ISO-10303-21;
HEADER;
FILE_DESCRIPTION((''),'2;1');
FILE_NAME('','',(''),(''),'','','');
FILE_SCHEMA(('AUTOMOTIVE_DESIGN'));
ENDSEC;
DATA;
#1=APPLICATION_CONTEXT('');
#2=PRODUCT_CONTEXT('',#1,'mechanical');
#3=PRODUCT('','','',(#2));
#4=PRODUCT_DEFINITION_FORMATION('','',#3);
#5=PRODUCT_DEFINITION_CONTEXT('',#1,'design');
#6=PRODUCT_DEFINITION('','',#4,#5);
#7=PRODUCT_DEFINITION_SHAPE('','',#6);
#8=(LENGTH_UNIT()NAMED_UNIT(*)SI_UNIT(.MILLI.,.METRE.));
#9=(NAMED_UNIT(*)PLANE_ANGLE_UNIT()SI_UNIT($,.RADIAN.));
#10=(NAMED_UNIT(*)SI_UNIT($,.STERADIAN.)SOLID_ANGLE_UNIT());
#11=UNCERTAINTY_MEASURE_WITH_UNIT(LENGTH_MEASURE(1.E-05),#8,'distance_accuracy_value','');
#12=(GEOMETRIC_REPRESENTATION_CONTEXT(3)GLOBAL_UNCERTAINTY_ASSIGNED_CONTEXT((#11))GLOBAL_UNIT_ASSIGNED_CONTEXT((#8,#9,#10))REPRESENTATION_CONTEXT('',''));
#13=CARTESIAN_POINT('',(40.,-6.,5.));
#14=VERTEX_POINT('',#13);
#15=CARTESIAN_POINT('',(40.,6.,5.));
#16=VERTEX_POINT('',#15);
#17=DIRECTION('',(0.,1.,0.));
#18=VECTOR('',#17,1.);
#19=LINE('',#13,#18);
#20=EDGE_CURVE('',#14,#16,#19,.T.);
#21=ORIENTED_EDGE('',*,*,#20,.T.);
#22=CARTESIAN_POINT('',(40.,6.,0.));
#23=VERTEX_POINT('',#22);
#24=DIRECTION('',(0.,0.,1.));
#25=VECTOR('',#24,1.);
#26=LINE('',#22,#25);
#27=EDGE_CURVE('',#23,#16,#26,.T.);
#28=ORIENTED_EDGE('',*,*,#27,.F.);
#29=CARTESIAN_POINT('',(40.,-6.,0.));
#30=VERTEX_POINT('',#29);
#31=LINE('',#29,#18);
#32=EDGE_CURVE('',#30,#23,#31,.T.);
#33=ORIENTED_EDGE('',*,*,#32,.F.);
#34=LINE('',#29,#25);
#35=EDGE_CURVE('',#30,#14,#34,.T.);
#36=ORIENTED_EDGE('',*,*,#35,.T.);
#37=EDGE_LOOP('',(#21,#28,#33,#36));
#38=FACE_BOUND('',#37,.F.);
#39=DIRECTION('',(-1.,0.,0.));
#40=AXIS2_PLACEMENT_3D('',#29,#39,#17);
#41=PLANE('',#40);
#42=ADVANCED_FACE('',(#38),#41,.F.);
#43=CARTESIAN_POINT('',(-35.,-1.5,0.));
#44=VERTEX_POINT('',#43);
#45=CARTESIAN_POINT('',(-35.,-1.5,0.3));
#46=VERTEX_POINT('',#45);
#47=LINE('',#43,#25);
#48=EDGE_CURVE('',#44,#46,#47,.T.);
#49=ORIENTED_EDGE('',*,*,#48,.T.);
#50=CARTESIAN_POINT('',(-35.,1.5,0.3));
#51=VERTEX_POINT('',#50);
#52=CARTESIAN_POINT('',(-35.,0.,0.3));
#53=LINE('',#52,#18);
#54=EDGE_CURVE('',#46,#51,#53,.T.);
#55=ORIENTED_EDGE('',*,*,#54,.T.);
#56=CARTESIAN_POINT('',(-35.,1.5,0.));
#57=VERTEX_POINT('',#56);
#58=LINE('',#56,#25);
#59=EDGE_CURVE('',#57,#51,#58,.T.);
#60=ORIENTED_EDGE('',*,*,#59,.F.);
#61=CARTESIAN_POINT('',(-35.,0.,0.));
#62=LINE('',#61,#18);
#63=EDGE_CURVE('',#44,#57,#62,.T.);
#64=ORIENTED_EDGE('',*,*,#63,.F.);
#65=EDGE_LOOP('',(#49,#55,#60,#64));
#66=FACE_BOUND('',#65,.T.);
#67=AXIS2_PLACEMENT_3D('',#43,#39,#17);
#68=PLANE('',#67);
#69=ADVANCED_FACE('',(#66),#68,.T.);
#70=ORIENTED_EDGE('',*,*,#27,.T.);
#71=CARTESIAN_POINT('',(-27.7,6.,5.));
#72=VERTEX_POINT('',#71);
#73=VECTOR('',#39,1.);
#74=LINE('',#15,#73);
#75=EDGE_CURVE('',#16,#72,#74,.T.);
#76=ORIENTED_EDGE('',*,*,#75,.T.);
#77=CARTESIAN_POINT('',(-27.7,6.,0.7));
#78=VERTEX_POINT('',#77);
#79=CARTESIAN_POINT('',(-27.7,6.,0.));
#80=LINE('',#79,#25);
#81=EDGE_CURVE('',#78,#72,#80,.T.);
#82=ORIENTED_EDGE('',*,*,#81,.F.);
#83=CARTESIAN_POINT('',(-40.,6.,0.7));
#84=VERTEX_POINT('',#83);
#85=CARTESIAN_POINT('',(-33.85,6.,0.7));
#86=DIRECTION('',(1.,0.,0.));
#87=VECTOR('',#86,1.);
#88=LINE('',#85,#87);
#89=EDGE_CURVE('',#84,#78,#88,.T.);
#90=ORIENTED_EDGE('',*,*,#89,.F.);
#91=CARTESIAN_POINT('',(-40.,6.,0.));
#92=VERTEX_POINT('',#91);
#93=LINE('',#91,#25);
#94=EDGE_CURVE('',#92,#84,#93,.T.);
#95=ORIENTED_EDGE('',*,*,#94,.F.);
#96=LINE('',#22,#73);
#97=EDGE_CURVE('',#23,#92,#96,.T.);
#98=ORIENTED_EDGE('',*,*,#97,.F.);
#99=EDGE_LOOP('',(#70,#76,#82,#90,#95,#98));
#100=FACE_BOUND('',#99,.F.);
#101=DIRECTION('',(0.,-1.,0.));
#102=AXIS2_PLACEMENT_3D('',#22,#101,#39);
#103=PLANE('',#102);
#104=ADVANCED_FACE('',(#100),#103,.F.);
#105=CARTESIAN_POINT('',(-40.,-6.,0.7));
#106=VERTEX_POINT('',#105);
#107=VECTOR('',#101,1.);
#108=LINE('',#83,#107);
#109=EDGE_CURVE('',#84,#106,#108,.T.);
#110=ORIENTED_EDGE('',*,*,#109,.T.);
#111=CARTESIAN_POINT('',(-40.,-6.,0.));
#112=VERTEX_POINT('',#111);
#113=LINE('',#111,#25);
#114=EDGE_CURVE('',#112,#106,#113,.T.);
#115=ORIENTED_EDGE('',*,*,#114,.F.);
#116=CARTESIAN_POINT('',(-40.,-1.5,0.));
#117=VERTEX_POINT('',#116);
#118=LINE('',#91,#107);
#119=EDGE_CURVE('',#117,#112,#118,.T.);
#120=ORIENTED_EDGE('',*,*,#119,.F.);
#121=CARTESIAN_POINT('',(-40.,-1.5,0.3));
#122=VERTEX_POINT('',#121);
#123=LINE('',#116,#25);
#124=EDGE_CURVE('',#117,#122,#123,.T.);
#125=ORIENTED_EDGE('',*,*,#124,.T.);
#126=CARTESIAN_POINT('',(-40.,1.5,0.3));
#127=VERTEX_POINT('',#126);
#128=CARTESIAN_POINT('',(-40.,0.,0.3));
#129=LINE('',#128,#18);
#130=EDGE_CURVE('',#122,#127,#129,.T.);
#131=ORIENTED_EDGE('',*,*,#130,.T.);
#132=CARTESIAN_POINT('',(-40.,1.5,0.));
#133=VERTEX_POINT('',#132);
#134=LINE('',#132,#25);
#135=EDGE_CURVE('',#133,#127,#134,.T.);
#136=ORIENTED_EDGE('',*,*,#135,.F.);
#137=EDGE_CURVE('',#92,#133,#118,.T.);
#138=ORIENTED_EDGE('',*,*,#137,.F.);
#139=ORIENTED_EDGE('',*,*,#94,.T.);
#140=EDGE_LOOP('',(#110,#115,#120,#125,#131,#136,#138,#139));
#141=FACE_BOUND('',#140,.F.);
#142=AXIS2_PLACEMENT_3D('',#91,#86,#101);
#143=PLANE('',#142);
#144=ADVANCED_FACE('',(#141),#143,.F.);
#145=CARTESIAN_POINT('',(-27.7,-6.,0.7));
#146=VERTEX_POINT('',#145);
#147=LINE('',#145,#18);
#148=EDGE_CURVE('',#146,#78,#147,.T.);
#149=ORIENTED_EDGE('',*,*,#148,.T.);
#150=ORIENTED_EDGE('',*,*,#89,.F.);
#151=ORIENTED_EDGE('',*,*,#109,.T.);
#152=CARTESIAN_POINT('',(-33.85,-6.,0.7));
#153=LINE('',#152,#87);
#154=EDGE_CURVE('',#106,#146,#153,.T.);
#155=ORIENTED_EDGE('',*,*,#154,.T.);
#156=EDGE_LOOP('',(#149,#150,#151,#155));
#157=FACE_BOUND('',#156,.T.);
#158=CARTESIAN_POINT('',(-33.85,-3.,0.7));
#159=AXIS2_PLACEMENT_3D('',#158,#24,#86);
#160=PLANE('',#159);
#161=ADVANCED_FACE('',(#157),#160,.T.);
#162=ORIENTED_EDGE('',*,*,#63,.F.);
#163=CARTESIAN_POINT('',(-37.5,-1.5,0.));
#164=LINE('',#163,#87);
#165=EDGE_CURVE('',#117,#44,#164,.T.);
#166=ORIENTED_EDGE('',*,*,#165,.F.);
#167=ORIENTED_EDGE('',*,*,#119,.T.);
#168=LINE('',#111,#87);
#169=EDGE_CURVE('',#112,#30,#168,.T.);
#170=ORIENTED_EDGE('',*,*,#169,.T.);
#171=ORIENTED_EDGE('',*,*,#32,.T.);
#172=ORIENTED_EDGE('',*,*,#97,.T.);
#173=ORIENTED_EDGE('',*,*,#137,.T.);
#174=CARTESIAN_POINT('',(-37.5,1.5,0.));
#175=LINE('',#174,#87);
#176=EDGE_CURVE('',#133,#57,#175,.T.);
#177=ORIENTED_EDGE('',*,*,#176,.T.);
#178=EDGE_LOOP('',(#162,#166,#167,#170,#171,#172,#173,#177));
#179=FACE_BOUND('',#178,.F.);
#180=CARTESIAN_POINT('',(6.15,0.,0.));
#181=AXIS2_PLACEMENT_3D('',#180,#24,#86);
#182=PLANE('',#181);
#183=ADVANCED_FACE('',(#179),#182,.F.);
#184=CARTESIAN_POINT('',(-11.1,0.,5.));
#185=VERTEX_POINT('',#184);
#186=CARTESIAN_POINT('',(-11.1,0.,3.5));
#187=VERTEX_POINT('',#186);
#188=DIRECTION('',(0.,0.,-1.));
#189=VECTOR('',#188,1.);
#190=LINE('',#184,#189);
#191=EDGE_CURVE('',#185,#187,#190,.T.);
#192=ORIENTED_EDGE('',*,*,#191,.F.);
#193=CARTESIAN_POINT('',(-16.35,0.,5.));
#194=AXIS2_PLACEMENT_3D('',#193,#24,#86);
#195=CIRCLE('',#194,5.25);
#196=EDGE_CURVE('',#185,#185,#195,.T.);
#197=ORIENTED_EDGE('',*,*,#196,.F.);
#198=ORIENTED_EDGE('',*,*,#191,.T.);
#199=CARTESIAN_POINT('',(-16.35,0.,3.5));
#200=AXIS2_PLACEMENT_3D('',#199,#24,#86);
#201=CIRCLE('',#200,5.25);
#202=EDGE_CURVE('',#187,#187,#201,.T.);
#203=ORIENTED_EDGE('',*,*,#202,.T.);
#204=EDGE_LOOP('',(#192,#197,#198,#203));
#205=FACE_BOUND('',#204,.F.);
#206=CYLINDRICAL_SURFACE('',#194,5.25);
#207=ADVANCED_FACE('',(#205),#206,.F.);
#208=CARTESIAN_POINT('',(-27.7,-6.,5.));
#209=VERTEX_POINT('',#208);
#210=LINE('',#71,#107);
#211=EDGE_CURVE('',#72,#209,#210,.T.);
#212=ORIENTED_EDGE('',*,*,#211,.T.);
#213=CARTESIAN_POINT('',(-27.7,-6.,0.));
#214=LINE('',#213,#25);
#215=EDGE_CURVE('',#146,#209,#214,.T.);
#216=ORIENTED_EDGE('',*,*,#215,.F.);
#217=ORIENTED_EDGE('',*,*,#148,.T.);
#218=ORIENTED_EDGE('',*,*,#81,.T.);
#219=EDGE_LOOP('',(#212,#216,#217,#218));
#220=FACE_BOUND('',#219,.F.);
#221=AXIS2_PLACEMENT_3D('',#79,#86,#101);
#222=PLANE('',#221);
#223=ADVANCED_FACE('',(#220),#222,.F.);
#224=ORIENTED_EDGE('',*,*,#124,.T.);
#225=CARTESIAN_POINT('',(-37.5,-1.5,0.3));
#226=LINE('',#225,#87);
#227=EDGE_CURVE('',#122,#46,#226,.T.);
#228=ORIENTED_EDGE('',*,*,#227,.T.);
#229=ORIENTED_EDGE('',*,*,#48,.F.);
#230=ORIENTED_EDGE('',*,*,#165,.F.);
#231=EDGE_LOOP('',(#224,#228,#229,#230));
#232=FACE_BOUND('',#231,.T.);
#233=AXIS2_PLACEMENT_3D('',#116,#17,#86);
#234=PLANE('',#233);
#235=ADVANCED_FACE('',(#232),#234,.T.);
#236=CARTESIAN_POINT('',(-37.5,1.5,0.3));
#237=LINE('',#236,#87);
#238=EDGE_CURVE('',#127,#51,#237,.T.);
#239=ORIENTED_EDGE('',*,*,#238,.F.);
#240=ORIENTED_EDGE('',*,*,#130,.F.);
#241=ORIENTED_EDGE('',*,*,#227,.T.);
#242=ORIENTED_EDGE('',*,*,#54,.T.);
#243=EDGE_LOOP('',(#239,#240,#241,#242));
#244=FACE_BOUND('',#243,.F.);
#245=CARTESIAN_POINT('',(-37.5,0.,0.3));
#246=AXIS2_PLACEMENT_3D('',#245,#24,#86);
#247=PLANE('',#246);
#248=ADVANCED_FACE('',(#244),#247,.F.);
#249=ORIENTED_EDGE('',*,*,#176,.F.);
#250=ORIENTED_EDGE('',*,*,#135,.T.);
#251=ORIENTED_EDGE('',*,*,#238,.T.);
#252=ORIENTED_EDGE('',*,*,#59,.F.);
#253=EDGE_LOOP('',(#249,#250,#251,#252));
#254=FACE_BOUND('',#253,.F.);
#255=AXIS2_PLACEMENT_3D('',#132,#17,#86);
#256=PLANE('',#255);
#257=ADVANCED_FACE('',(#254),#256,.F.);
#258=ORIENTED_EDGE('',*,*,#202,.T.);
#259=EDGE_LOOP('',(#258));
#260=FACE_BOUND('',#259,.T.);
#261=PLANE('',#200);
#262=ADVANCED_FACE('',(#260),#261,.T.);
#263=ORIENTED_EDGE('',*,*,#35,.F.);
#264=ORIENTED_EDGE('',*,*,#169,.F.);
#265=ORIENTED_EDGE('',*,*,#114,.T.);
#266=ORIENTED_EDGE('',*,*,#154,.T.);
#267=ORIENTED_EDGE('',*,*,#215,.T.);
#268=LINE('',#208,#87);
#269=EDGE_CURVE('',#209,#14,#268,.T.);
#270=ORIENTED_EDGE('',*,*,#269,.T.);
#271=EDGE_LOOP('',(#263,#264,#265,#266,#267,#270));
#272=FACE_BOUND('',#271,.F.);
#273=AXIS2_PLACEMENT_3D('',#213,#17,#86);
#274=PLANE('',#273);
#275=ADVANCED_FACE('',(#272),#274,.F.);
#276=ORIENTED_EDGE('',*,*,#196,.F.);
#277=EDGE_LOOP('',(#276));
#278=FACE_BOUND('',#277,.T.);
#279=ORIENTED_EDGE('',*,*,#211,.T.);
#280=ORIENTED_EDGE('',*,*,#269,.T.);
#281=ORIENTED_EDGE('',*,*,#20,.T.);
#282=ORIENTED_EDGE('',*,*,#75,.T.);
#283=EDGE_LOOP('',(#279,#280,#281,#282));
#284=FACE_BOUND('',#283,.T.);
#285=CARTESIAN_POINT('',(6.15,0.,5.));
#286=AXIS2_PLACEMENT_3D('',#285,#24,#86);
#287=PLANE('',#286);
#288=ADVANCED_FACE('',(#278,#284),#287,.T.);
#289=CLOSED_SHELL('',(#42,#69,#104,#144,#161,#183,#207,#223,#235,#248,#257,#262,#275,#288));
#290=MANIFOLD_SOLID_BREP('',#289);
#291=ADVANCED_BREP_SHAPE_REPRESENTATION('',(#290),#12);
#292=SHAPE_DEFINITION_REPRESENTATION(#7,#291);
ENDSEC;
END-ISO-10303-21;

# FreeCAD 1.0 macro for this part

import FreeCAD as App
import Part
import Sketcher

V = App.Vector


def add_polygon(sketch, points):
    """Adds a closed chain of lines whose ends are joined by coincident constraints."""
    first, n = sketch.GeometryCount, len(points)
    for a, b in zip(points, points[1:] + points[:1]):
        sketch.addGeometry(Part.LineSegment(App.Vector(*a, 0), App.Vector(*b, 0)), False)
    for i in range(n):
        sketch.addConstraint(Sketcher.Constraint("Coincident", first + i, 2, first + (i + 1) % n, 1))

doc = App.newDocument("Part")
body = doc.addObject("PartDesign::Body", "Body")

# Sketch on XY plane
sketch1 = body.newObject("Sketcher::SketchObject", "Sketch")
sketch1.AttachmentSupport = (doc.getObject("XY_Plane"), [""])
sketch1.MapMode = "FlatFace"
add_polygon(sketch1, [(-40, -6), (-28, -6), (-28, 6), (-40, 6)])  # lines 0-3
sketch1.addConstraint(Sketcher.Constraint("Horizontal", 0))
sketch1.addConstraint(Sketcher.Constraint("Vertical", 1))
sketch1.addConstraint(Sketcher.Constraint("Horizontal", 2))
sketch1.addConstraint(Sketcher.Constraint("Vertical", 3))
sketch1.addConstraint(Sketcher.Constraint("DistanceY", 1, 1, 1, 2, 12.0))
sketch1.addConstraint(Sketcher.Constraint("DistanceX", 0, 1, 0, 2, 12.3))
sketch1.addConstraint(Sketcher.Constraint("DistanceY", 0, 2, -1, 1, 6.0))
sketch1.addConstraint(Sketcher.Constraint("DistanceX", 2, 2, -1, 1, 40.0))
pad1 = body.newObject("PartDesign::Pad", "Pad")
pad1.Profile = sketch1
pad1.Length = 0.7

# Sketch on XY plane
sketch2 = body.newObject("Sketcher::SketchObject", "Sketch001")
sketch2.AttachmentSupport = (doc.getObject("XY_Plane"), [""])
sketch2.MapMode = "FlatFace"
add_polygon(sketch2, [(40, -6), (40, 6), (-28, 6), (-28, -6)])  # lines 0-3
sketch2.addConstraint(Sketcher.Constraint("Vertical", 0))
sketch2.addConstraint(Sketcher.Constraint("Horizontal", 1))
sketch2.addConstraint(Sketcher.Constraint("Vertical", 2))
sketch2.addConstraint(Sketcher.Constraint("Horizontal", 3))
sketch2.addConstraint(Sketcher.Constraint("DistanceY", 0, 1, 0, 2, 12.0))
sketch2.addConstraint(Sketcher.Constraint("DistanceX", 1, 2, 1, 1, 67.7))
sketch2.addConstraint(Sketcher.Constraint("DistanceX", -1, 1, 0, 2, 40.0))
sketch2.addConstraint(Sketcher.Constraint("DistanceY", -1, 1, 0, 2, 6.0))
pad2 = body.newObject("PartDesign::Pad", "Pad001")
pad2.Profile = sketch2
pad2.Length = 5

# Sketch on XY plane
sketch3 = body.newObject("Sketcher::SketchObject", "Sketch002")
sketch3.AttachmentSupport = (doc.getObject("XY_Plane"), [""])
sketch3.MapMode = "FlatFace"
sketch3.AttachmentOffset = App.Placement(V(0, 0, 5), App.Rotation())
sketch3.addGeometry(Part.Circle(V(-16, 0, 0), V(0, 0, 1), 5), False)
sketch3.addConstraint(Sketcher.Constraint("PointOnObject", 0, 3, -1))
sketch3.addConstraint(Sketcher.Constraint("Diameter", 0, 10.5))
sketch3.addConstraint(Sketcher.Constraint("DistanceX", 0, 3, -1, 1, 16.35))
pocket1 = body.newObject("PartDesign::Pocket", "Pocket")
pocket1.Profile = sketch3
pocket1.Length = 1.5

# Sketch on XY plane
sketch4 = body.newObject("Sketcher::SketchObject", "Sketch003")
sketch4.AttachmentSupport = (doc.getObject("XY_Plane"), [""])
sketch4.MapMode = "FlatFace"
add_polygon(sketch4, [(-40, 1.5), (-40, -1.5), (-35, -1.5), (-35, 1.5)])  # lines 0-3
sketch4.addConstraint(Sketcher.Constraint("Vertical", 0))
sketch4.addConstraint(Sketcher.Constraint("Horizontal", 1))
sketch4.addConstraint(Sketcher.Constraint("Vertical", 2))
sketch4.addConstraint(Sketcher.Constraint("Horizontal", 3))
sketch4.addConstraint(Sketcher.Constraint("DistanceX", 1, 1, 1, 2, 5.0))
sketch4.addConstraint(Sketcher.Constraint("DistanceY", 0, 2, 0, 1, 3.0))
sketch4.addConstraint(Sketcher.Constraint("DistanceX", 0, 2, -1, 1, 40.0))
sketch4.addConstraint(Sketcher.Constraint("DistanceY", 0, 2, -1, 1, 1.5))
pocket2 = body.newObject("PartDesign::Pocket", "Pocket001")
pocket2.Profile = sketch4
pocket2.Length = 0.3
pocket2.Reversed = True

doc.recompute()
